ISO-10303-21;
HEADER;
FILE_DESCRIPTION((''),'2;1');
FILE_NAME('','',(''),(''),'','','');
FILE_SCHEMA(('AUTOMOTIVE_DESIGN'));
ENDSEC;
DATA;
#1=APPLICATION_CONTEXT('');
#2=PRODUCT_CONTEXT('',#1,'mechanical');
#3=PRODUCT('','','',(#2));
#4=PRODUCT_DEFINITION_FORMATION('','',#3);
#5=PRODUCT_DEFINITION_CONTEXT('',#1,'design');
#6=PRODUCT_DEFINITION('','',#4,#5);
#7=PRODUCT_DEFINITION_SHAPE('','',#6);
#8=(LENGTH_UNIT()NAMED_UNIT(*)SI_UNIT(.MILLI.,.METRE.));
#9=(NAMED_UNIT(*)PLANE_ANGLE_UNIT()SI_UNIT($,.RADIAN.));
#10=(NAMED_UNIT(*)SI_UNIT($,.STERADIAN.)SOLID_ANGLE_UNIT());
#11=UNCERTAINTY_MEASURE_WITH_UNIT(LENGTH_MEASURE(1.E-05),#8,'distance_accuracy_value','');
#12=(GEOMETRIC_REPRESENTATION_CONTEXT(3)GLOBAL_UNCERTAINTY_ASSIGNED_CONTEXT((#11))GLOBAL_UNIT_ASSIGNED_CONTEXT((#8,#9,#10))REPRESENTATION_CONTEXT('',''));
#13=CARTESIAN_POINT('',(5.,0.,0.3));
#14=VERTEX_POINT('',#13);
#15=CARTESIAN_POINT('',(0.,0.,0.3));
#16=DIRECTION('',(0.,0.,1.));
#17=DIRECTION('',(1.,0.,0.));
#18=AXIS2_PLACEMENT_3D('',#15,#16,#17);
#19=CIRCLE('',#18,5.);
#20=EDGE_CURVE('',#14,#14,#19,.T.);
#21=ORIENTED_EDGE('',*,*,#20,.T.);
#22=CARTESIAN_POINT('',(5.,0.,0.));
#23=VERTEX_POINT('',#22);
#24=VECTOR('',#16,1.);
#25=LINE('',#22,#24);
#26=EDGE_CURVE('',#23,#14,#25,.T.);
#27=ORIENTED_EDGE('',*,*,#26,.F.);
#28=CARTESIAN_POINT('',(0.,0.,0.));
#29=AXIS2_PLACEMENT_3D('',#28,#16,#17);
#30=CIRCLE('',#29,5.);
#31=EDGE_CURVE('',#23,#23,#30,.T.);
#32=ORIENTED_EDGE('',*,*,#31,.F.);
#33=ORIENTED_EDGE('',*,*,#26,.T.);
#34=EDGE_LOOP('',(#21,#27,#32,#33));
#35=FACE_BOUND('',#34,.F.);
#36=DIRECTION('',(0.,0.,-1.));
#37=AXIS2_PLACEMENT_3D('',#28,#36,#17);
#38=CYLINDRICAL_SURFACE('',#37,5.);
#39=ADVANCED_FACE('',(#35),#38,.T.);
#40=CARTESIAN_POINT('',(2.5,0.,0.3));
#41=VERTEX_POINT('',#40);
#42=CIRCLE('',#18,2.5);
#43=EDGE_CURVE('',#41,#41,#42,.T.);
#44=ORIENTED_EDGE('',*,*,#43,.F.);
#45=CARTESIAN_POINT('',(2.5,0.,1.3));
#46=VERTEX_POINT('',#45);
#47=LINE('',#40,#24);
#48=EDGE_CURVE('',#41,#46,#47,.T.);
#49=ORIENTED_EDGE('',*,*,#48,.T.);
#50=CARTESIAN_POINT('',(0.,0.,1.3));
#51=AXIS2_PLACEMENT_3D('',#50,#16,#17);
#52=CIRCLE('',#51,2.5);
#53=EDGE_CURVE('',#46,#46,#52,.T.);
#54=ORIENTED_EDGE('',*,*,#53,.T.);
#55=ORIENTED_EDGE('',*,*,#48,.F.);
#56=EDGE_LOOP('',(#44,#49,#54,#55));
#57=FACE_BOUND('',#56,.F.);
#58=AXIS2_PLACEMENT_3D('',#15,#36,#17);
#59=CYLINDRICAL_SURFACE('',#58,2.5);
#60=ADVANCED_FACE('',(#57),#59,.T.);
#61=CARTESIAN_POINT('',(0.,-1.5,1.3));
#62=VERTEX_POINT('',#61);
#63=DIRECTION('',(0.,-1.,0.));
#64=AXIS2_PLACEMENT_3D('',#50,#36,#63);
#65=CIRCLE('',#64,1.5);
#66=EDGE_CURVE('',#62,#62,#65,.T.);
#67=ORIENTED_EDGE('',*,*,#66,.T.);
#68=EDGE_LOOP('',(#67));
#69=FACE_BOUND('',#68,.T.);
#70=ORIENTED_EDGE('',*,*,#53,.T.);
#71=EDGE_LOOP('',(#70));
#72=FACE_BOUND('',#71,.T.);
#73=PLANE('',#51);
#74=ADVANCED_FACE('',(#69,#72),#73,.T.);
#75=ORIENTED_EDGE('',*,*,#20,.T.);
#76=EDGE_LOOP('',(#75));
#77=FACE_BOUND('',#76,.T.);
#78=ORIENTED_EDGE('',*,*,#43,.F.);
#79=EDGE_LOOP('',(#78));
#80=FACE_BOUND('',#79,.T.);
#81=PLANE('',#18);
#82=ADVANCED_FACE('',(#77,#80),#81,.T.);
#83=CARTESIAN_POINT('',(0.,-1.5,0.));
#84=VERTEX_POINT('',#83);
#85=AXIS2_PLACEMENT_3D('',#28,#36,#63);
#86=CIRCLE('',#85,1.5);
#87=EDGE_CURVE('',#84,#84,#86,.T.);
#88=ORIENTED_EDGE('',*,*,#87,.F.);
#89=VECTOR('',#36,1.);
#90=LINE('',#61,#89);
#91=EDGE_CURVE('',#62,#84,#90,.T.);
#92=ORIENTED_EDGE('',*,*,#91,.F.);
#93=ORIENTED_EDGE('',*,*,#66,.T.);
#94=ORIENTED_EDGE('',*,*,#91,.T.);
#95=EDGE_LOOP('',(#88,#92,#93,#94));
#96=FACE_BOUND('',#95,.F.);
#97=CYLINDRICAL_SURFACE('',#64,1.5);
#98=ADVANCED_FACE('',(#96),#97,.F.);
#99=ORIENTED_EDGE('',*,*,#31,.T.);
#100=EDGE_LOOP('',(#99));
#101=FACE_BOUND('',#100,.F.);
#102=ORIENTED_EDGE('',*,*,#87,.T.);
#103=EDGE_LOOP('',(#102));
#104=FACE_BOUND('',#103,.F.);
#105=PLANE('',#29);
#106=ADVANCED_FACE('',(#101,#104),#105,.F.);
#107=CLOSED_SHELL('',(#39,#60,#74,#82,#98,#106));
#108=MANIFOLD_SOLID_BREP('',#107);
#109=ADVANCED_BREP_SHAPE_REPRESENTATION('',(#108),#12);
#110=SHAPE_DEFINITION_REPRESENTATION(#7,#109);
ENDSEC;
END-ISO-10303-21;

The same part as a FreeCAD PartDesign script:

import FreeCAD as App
import Part
import Sketcher
from FreeCAD import Vector

doc = App.newDocument("Part")
body = doc.addObject("PartDesign::Body", "Body")

# Sketch on XY plane
sketch1 = doc.addObject("Sketcher::SketchObject", "Sketch")
body.addObject(sketch1)
sketch1.AttachmentSupport = (doc.XY_Plane, [""])
sketch1.MapMode = "FlatFace"
sketch1.addGeometry(Part.Circle(Vector(0, 0, 0), Vector(0, 0, 1), 5), False)
sketch1.addConstraint([
    Sketcher.Constraint("Coincident", 0, 3, -1, 1),
    Sketcher.Constraint("Diameter", 0, 10.0),
])
pad1 = doc.addObject("PartDesign::Pad", "Pad")
body.addObject(pad1)
pad1.Profile = sketch1
pad1.Length = 0.3

# Sketch on XY plane
sketch2 = doc.addObject("Sketcher::SketchObject", "Sketch001")
body.addObject(sketch2)
sketch2.AttachmentSupport = (doc.XY_Plane, [""])
sketch2.MapMode = "FlatFace"
sketch2.AttachmentOffset = App.Placement(Vector(0, 0, 0.3), App.Rotation())
sketch2.addGeometry(Part.Circle(Vector(0, 0, 0), Vector(0, 0, 1), 2.5), False)
sketch2.addConstraint([
    Sketcher.Constraint("Coincident", 0, 3, -1, 1),
    Sketcher.Constraint("Diameter", 0, 5.0),
])
pad2 = doc.addObject("PartDesign::Pad", "Pad001")
body.addObject(pad2)
pad2.Profile = sketch2
pad2.Length = 1

# Sketch on XY plane
sketch3 = doc.addObject("Sketcher::SketchObject", "Sketch002")
body.addObject(sketch3)
sketch3.AttachmentSupport = (doc.XY_Plane, [""])
sketch3.MapMode = "FlatFace"
sketch3.AttachmentOffset = App.Placement(Vector(0, 0, 1.3), App.Rotation())
sketch3.addGeometry(Part.Circle(Vector(0, 0, 0), Vector(0, 0, 1), 1.5), False)
sketch3.addConstraint([
    Sketcher.Constraint("Coincident", 0, 3, -1, 1),
    Sketcher.Constraint("Diameter", 0, 3.0),
])
doc.recompute()
hole = doc.addObject("PartDesign::Hole", "Hole")
body.addObject(hole)
hole.Profile = sketch3
hole.ThreadType = "None"
hole.Diameter = 3
hole.DepthType = "ThroughAll"

doc.recompute()
